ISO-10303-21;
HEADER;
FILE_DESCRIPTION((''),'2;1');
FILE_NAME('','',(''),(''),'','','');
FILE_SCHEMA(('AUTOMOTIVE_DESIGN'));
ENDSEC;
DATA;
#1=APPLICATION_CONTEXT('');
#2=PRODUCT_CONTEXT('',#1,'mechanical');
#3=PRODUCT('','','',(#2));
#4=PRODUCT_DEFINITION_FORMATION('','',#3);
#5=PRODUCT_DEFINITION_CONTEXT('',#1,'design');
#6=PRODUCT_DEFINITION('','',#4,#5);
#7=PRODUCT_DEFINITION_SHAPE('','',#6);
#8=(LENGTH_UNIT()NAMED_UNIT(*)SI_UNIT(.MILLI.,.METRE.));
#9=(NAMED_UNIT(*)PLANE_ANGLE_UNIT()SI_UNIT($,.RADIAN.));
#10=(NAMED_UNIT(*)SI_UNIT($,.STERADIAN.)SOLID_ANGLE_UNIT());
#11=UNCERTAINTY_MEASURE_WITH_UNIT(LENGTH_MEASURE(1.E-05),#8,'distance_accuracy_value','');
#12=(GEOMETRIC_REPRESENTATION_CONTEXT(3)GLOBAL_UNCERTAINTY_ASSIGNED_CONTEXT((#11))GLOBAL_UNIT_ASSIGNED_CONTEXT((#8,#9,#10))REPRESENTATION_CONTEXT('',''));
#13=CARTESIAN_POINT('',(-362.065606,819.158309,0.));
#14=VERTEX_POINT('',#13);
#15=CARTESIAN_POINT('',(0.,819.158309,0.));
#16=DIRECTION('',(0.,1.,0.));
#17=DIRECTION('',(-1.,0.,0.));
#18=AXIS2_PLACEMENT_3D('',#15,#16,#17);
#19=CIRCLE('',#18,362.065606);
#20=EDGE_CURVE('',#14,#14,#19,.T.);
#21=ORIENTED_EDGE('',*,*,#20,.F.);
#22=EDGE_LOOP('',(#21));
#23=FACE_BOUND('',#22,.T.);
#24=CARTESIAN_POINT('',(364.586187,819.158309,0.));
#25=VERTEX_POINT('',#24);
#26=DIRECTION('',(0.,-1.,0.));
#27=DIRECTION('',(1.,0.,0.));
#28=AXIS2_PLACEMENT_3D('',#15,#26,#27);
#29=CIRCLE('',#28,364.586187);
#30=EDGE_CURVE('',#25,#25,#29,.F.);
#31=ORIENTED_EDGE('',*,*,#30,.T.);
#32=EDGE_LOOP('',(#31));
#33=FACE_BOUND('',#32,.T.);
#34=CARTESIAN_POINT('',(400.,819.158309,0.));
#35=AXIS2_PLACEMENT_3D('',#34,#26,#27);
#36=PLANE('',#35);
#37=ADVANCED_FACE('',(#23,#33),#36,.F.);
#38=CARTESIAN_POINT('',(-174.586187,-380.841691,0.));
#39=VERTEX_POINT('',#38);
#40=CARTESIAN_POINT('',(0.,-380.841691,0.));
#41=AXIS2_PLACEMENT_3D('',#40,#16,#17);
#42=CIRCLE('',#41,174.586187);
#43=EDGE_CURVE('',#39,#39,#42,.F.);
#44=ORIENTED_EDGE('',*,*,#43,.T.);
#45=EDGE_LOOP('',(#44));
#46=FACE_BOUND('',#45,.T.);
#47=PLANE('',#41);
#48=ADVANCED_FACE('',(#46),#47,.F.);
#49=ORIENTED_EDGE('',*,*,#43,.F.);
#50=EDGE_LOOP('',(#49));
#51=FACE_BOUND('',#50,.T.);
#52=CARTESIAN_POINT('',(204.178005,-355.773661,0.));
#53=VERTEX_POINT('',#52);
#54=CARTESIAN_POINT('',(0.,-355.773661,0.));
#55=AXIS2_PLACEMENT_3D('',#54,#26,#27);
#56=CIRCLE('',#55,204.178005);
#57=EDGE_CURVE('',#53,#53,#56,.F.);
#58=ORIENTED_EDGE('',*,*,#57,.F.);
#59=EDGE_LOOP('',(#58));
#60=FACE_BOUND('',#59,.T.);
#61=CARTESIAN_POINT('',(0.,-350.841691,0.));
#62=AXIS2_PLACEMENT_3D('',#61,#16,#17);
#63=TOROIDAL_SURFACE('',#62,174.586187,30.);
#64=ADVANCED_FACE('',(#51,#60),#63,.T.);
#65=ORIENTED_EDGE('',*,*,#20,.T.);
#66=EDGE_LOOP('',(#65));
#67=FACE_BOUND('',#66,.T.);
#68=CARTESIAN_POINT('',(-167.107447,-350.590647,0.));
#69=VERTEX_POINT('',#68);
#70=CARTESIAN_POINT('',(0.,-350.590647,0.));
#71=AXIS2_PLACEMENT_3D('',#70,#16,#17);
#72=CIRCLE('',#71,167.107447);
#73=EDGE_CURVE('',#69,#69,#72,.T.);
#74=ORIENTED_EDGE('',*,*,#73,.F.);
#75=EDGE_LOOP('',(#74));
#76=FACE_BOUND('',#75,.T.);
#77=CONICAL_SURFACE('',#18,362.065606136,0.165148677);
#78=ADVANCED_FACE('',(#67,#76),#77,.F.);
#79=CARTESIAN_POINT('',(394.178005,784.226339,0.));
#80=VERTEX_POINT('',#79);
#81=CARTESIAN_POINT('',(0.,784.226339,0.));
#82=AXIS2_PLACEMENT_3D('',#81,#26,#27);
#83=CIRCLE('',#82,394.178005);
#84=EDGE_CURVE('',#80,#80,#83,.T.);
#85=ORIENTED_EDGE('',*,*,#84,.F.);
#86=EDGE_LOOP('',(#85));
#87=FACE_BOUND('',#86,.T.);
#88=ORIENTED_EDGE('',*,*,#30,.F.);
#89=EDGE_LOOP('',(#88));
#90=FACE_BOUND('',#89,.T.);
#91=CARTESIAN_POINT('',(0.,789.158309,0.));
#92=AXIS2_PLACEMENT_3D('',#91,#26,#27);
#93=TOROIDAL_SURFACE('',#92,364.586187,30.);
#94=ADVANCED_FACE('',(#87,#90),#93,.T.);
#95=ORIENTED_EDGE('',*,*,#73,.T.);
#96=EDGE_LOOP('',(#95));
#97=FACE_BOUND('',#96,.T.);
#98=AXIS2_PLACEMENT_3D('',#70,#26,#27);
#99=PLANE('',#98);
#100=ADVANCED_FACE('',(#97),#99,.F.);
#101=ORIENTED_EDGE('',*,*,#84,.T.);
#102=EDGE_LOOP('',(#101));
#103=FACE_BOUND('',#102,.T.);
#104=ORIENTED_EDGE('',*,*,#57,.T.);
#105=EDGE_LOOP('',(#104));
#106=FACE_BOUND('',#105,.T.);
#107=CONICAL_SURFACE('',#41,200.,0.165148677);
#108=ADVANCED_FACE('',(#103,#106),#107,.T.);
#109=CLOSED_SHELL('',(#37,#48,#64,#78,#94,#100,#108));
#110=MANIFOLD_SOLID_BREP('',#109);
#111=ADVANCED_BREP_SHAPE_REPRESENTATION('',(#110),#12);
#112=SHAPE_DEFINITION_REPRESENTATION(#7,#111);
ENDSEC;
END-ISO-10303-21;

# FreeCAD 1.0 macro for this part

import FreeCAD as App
import Part
import Sketcher
from FreeCAD import Vector


def edges_at(feature, points):
    """Names of the edges that pass closest to the given points."""
    edges = feature.Shape.Edges
    near = lambda p: min(range(len(edges)), key=lambda i: edges[i].distToShape(Part.Vertex(*p))[0])
    return sorted({f"Edge{near(p) + 1}" for p in points})


def add_polygon(sketch, points):
    """Adds a closed chain of lines whose ends are joined by coincident constraints."""
    first, n = sketch.GeometryCount, len(points)
    for a, b in zip(points, points[1:] + points[:1]):
        sketch.addGeometry(Part.LineSegment(App.Vector(*a, 0), App.Vector(*b, 0)), False)
    for i in range(n):
        sketch.addConstraint(Sketcher.Constraint("Coincident", first + i, 2, first + (i + 1) % n, 1))

doc = App.newDocument("Part")
body = doc.addObject("PartDesign::Body", "Body")

sketch1 = body.newObject("Sketcher::SketchObject", "Sketch")
sketch1.AttachmentSupport = (doc.getObject("XY_Plane"), [""])
sketch1.MapMode = "FlatFace"
add_polygon(sketch1, [(0, -351), (0, -381), (200, -381), (400, 819), (362, 819), (167, -351)])
sketch1.addConstraint(Sketcher.Constraint("Vertical", 0))
sketch1.addConstraint(Sketcher.Constraint("Horizontal", 1))
sketch1.addConstraint(Sketcher.Constraint("Horizontal", 3))
sketch1.addConstraint(Sketcher.Constraint("Horizontal", 5))
sketch1.addConstraint(Sketcher.Constraint("PointOnObject", 0, 2, -2))
sketch1.addConstraint(Sketcher.Constraint("Parallel", 2, 4))
sketch1.addConstraint(Sketcher.Constraint("DistanceX", 1, 1, 1, 2, 200.0))
sketch1.addConstraint(Sketcher.Constraint("DistanceX", -1, 1, 2, 2, 400.0))
sketch1.addConstraint(Sketcher.Constraint("DistanceY", 1, 2, 2, 2, 1200.0))
sketch1.addConstraint(Sketcher.Constraint("DistanceX", 3, 2, 3, 1, 37.934394))
sketch1.addConstraint(Sketcher.Constraint("DistanceX", 5, 2, 5, 1, 167.107447))
sketch1.addConstraint(Sketcher.Constraint("DistanceY", 0, 2, -1, 1, 380.841691))
revolution = body.newObject("PartDesign::Revolution", "Revolution")
revolution.Profile = sketch1
revolution.ReferenceAxis = (sketch1, ["V_Axis"])
revolution.Angle = 360
doc.recompute()

fillet = body.newObject("PartDesign::Fillet", "Fillet")
fillet.Base = (revolution, edges_at(revolution, [(-200, -380.842, 0), (-400, 819.158, 0)]))
fillet.Radius = 30

doc.recompute()
